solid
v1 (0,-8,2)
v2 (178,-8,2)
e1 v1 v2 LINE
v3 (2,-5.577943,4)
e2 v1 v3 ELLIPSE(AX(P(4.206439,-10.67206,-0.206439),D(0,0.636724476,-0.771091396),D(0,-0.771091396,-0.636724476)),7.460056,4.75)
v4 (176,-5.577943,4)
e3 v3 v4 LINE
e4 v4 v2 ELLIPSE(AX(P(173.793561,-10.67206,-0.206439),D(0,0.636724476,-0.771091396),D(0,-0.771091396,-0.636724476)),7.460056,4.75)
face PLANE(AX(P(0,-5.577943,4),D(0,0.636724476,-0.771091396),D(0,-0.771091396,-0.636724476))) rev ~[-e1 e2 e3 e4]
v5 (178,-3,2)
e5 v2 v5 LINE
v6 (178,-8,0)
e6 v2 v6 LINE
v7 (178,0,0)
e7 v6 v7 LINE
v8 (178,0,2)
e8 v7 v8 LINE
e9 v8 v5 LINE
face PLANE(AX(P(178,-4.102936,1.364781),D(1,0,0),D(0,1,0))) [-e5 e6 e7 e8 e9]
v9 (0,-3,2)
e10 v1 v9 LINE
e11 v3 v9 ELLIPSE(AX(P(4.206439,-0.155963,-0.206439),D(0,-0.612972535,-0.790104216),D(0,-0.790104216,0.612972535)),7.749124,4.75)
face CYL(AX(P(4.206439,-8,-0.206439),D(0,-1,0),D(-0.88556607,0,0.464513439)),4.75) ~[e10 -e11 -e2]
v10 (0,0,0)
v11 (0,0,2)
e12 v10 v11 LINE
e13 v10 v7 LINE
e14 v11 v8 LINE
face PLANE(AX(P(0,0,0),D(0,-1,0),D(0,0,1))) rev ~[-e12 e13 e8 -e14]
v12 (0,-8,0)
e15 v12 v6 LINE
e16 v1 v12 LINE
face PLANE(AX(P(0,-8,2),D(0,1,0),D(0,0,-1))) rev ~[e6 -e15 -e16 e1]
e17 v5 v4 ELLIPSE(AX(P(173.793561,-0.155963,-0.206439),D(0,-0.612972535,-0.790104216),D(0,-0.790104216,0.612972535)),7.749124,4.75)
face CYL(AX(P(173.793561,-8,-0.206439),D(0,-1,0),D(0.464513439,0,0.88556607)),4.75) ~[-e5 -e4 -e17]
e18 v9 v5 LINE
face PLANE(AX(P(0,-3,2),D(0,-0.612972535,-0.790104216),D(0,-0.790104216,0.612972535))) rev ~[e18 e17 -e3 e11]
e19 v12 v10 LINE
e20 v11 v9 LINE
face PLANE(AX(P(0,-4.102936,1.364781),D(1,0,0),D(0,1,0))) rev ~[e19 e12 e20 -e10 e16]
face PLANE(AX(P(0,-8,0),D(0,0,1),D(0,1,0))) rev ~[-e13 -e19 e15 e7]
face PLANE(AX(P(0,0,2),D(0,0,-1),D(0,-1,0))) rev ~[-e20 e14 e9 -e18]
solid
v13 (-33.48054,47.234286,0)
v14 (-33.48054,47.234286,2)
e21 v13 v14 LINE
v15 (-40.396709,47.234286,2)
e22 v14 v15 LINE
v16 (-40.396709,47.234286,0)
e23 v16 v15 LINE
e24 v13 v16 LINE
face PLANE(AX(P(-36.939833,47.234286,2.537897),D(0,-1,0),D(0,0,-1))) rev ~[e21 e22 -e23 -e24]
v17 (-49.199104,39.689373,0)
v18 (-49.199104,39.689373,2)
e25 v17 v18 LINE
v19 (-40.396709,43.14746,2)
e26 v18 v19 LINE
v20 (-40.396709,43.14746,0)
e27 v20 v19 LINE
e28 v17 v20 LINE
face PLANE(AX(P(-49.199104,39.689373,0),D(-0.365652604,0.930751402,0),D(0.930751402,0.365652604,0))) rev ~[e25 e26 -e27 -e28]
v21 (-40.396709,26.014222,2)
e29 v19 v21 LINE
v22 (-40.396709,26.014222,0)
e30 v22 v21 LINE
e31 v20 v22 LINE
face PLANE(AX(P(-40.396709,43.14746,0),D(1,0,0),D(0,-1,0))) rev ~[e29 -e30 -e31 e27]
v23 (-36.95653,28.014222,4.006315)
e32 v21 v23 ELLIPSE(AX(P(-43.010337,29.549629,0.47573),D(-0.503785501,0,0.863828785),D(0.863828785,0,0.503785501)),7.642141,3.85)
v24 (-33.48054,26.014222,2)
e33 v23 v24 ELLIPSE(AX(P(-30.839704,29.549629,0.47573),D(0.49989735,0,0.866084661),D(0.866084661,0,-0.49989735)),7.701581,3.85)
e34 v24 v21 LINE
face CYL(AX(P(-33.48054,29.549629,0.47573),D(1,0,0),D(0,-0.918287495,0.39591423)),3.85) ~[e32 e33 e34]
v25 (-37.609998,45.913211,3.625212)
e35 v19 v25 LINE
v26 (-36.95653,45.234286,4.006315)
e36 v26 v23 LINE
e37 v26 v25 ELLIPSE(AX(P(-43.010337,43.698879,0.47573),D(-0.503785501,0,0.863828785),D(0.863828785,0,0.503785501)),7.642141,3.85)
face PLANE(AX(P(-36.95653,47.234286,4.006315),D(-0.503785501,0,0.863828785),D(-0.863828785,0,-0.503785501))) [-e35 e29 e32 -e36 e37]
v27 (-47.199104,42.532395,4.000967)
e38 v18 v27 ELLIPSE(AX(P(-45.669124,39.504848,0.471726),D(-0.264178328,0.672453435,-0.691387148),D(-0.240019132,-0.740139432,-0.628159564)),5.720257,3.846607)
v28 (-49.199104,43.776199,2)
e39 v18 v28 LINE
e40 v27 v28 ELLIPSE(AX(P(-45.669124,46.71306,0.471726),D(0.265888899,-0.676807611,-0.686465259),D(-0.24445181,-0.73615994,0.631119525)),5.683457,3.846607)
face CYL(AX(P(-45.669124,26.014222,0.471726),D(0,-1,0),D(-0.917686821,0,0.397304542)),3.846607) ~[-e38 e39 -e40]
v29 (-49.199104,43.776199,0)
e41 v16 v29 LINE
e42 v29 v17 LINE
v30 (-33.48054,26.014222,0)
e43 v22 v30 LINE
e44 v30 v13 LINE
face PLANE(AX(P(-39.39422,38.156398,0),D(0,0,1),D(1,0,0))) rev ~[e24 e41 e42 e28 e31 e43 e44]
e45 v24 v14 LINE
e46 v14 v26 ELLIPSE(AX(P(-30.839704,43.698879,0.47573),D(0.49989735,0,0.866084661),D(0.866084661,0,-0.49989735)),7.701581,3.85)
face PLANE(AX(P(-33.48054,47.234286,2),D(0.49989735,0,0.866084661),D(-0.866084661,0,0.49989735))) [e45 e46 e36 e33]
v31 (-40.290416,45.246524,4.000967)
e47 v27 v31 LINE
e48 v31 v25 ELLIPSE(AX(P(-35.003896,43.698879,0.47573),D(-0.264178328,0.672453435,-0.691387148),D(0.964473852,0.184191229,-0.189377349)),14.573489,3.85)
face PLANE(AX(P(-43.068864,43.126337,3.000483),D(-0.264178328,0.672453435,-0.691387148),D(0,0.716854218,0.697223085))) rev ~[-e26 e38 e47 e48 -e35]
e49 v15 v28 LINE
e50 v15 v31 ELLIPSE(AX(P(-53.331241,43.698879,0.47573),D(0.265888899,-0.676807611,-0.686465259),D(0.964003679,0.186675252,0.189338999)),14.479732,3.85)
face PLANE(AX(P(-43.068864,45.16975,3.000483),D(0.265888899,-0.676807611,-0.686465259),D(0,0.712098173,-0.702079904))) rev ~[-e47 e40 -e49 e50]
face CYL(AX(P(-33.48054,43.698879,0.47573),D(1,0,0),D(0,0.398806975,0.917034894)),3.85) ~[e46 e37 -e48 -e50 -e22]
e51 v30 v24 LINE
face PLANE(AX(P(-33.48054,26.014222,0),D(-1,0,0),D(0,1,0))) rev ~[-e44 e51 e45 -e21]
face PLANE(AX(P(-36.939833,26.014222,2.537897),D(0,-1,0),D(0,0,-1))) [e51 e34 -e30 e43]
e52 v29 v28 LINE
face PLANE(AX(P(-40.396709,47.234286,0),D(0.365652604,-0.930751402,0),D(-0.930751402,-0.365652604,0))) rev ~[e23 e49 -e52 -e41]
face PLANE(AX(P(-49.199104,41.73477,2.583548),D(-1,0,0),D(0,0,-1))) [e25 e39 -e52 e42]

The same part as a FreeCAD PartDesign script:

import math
import FreeCAD as App
import Part
import Sketcher

doc = App.newDocument("Part")
params = doc.addObject("Spreadsheet::Sheet", "Params")
for row, (alias, value) in enumerate([
    ("sketch1_width", "8 mm"),
    ("sketch1_width2", "3 mm"),
    ("sketch1_height", "2 mm"),
    ("pad1_length", "178 mm"),
    ("sketch2_width", "2 mm"),
    ("sketch2_radius", "4.75 mm"),
    ("pad2_length", "2 mm"),
    ("sketch8_width", "2 mm"),
    ("pocket2_length", "19.547692 mm"),
    ("sketch9_width", "2 mm"),
    ("sketch9_radius", "3.85 mm"),
], start=1):
    params.set(f"A{row}", alias)
    params.set(f"B{row}", "=" + value)
    params.setAlias(f"B{row}", alias)

body = doc.addObject("PartDesign::Body", "Body")

sketch1 = body.newObject("Sketcher::SketchObject", "Sketch")
sketch1.AttachmentSupport = (doc.getObject("YZ_Plane"), [""])
sketch1.MapMode = "FlatFace"
sketch1.addGeometry([
    Part.LineSegment(App.Vector(-8, 0, 0), App.Vector(0, 0, 0)),
    Part.LineSegment(App.Vector(0, 0, 0), App.Vector(0, 2, 0)),
    Part.LineSegment(App.Vector(0, 2, 0), App.Vector(-3, 2, 0)),
    Part.LineSegment(App.Vector(-3, 2, 0), App.Vector(-5.577943, 4, 0)),
    Part.LineSegment(App.Vector(-5.577943, 4, 0), App.Vector(-8, 2, 0)),
    Part.LineSegment(App.Vector(-8, 2, 0), App.Vector(-8, 0, 0)),
], False)
sketch1.addConstraint([
    Sketcher.Constraint("Coincident", 0, 2, 1, 1),
    Sketcher.Constraint("Coincident", 1, 2, 2, 1),
    Sketcher.Constraint("Coincident", 2, 2, 3, 1),
    Sketcher.Constraint("Coincident", 3, 2, 4, 1),
    Sketcher.Constraint("Coincident", 4, 2, 5, 1),
    Sketcher.Constraint("Coincident", 5, 2, 0, 1),
    Sketcher.Constraint("Horizontal", 0),
    Sketcher.Constraint("Vertical", 1),
    Sketcher.Constraint("Horizontal", 2),
    Sketcher.Constraint("Vertical", 5),
    Sketcher.Constraint("Coincident", 0, 2, -1, 1),
    Sketcher.Constraint("Horizontal", 2, 2, 4, 2),
    Sketcher.Constraint("DistanceX", 0, 1, 0, 2, 8.0),
    Sketcher.Constraint("DistanceX", 2, 2, 2, 1, 3.0),
    Sketcher.Constraint("DistanceY", 1, 1, 1, 2, 2.0),
    Sketcher.Constraint("DistanceY", -1, 1, 3, 2, 4.0),
    Sketcher.Constraint("Distance", 3, 3.262789),
])
sketch1.setExpression("Constraints[12]", "Params.sketch1_width")
sketch1.setExpression("Constraints[13]", "Params.sketch1_width2")
sketch1.setExpression("Constraints[14]", "Params.sketch1_height")
pad1 = body.newObject("PartDesign::Pad", "Pad")
pad1.Profile = sketch1
pad1.setExpression("Length", "Params.pad1_length")

sketch2 = body.newObject("Sketcher::SketchObject", "Sketch001")
sketch2.AttachmentSupport = (doc.getObject("XZ_Plane"), [""])
sketch2.MapMode = "FlatFace"
sketch2.AttachmentOffset = App.Placement(App.Vector(0, 0, 8), App.Rotation())
sketch2.addGeometry([
    Part.ArcOfCircle(Part.Circle(App.Vector(4.206439, -0.206439, 0), App.Vector(0, 0, 1), 4.75), math.radians(117.678737), math.radians(152.321263)),
    Part.LineSegment(App.Vector(2, 4, 0), App.Vector(0, 4, 0)),
    Part.LineSegment(App.Vector(0, 4, 0), App.Vector(0, 2, 0)),
    Part.ArcOfCircle(Part.Circle(App.Vector(173.793561, -0.206439, 0), App.Vector(0, 0, 1), 4.75), math.radians(27.678737), math.radians(62.321263)),
    Part.LineSegment(App.Vector(178, 2, 0), App.Vector(178, 4, 0)),
    Part.LineSegment(App.Vector(178, 4, 0), App.Vector(176, 4, 0)),
], False)
sketch2.addConstraint([
    Sketcher.Constraint("Coincident", 0, 1, 1, 1),
    Sketcher.Constraint("Coincident", 1, 2, 2, 1),
    Sketcher.Constraint("Coincident", 2, 2, 0, 2),
    Sketcher.Constraint("Coincident", 3, 1, 4, 1),
    Sketcher.Constraint("Coincident", 4, 2, 5, 1),
    Sketcher.Constraint("Coincident", 5, 2, 3, 2),
    Sketcher.Constraint("Horizontal", 1),
    Sketcher.Constraint("Vertical", 2),
    Sketcher.Constraint("Vertical", 4),
    Sketcher.Constraint("Horizontal", 5),
    Sketcher.Constraint("Equal", 0, 3),
    Sketcher.Constraint("PointOnObject", 1, 2, -2),
    Sketcher.Constraint("Horizontal", 0, 3, 3, 3),
    Sketcher.Constraint("Horizontal", 2, 2, 3, 1),
    Sketcher.Constraint("Horizontal", 1, 2, 4, 2),
    Sketcher.Constraint("Equal", 5, 2),
    Sketcher.Constraint("DistanceX", 1, 2, 1, 1, 2.0),
    Sketcher.Constraint("Radius", 0, 4.75),
    Sketcher.Constraint("DistanceY", -1, 1, 0, 1, 4.0),
    Sketcher.Constraint("DistanceX", -1, 1, 3, 1, 178.0),
])
sketch2.setExpression("Constraints[16]", "Params.sketch2_width")
sketch2.setExpression("Constraints[17]", "Params.sketch2_radius")
pocket1 = body.newObject("PartDesign::Pocket", "Pocket")
pocket1.Profile = sketch2
pocket1.Type = "ThroughAll"
body2 = doc.addObject("PartDesign::Body", "Body001")

sketch3 = body2.newObject("Sketcher::SketchObject", "Sketch002")
sketch3.AttachmentSupport = (doc.getObject("XY_Plane001"), [""])
sketch3.MapMode = "FlatFace"
sketch3.addGeometry([
    Part.LineSegment(App.Vector(-33.48054, 47.234286, 0), App.Vector(-40.396709, 47.234286, 0)),
    Part.LineSegment(App.Vector(-40.396709, 47.234286, 0), App.Vector(-49.199104, 43.776199, 0)),
    Part.LineSegment(App.Vector(-49.199104, 43.776199, 0), App.Vector(-49.199104, 39.689373, 0)),
    Part.LineSegment(App.Vector(-49.199104, 39.689373, 0), App.Vector(-40.396709, 43.14746, 0)),
    Part.LineSegment(App.Vector(-40.396709, 43.14746, 0), App.Vector(-40.396709, 26.014222, 0)),
    Part.LineSegment(App.Vector(-40.396709, 26.014222, 0), App.Vector(-33.48054, 26.014222, 0)),
    Part.LineSegment(App.Vector(-33.48054, 26.014222, 0), App.Vector(-33.48054, 47.234286, 0)),
], False)
sketch3.addConstraint([
    Sketcher.Constraint("Coincident", 0, 2, 1, 1),
    Sketcher.Constraint("Coincident", 1, 2, 2, 1),
    Sketcher.Constraint("Coincident", 2, 2, 3, 1),
    Sketcher.Constraint("Coincident", 3, 2, 4, 1),
    Sketcher.Constraint("Coincident", 4, 2, 5, 1),
    Sketcher.Constraint("Coincident", 5, 2, 6, 1),
    Sketcher.Constraint("Coincident", 6, 2, 0, 1),
    Sketcher.Constraint("Horizontal", 0),
    Sketcher.Constraint("Vertical", 2),
    Sketcher.Constraint("Vertical", 4),
    Sketcher.Constraint("Horizontal", 5),
    Sketcher.Constraint("Vertical", 6),
    Sketcher.Constraint("Parallel", 1, 3),
    Sketcher.Constraint("Vertical", 0, 2, 3, 2),
    Sketcher.Constraint("Distance", 1, 9.4573),
    Sketcher.Constraint("DistanceX", 0, 2, 0, 1, 6.916169),
    Sketcher.Constraint("DistanceY", -1, 1, 1, 2, 43.776199),
    Sketcher.Constraint("DistanceY", 2, 2, 2, 1, 4.086826),
    Sketcher.Constraint("DistanceY", 4, 2, 4, 1, 17.133238),
    Sketcher.Constraint("DistanceX", 0, 2, -1, 1, 40.396709),
    Sketcher.Constraint("DistanceY", -1, 1, 3, 2, 43.14746),
])
pad2 = body2.newObject("PartDesign::Pad", "Pad001")
pad2.Profile = sketch3
pad2.setExpression("Length", "Params.pad2_length")

sketch4 = body2.newObject("Sketcher::SketchObject", "Sketch003")
sketch4.AttachmentSupport = (doc.getObject("YZ_Plane001"), [""])
sketch4.MapMode = "FlatFace"
sketch4.AttachmentOffset = App.Placement(App.Vector(0, 0, -49.199104), App.Rotation())
sketch4.addGeometry([
    Part.LineSegment(App.Vector(41.74668, 4.000967, 0), App.Vector(43.776199, 2, 0)),
    Part.LineSegment(App.Vector(43.776199, 2, 0), App.Vector(39.689373, 2, 0)),
    Part.LineSegment(App.Vector(39.689373, 2, 0), App.Vector(41.74668, 4.000967, 0)),
], False)
sketch4.addConstraint([
    Sketcher.Constraint("Coincident", 0, 2, 1, 1),
    Sketcher.Constraint("Coincident", 1, 2, 2, 1),
    Sketcher.Constraint("Coincident", 2, 2, 0, 1),
    Sketcher.Constraint("Horizontal", 1),
    Sketcher.Constraint("DistanceY", -1, 1, 0, 2, 2.0),
    Sketcher.Constraint("DistanceX", -1, 1, 0, 2, 43.776199),
    Sketcher.Constraint("Distance", 2, 2.869909),
    Sketcher.Constraint("DistanceX", 1, 2, 1, 1, 4.086826),
    Sketcher.Constraint("DistanceX", -1, 1, 2, 2, 41.74668),
])

sketch5 = body2.newObject("Sketcher::SketchObject", "Sketch004")
sketch5.Placement = App.Placement(App.Vector(-20.780999, 52.89705, 0), App.Rotation(App.Vector(0.930751402, 0.365652604, 0), App.Vector(0, 0, 0.999999999), App.Vector(0.365652604, -0.930751402, 0), "ZXY"))
sketch5.addGeometry(Part.LineSegment(App.Vector(-30.532433, 4, 0), App.Vector(-17.359765, 4, 0)), False)
sketch5.addConstraint([
    Sketcher.Constraint("Horizontal", 0),
    Sketcher.Constraint("DistanceY", -1, 1, 0, 1, 4.0),
    Sketcher.Constraint("DistanceX", 0, 1, 0, 2, 13.172669),
    Sketcher.Constraint("DistanceX", 0, 1, -1, 1, 30.532433),
])
doc.recompute()

additivepipe = body2.newObject("PartDesign::AdditivePipe", "AdditivePipe")
additivepipe.Profile = sketch4
additivepipe.Spine = (sketch5, ["Edge1"])

sketch6 = body2.newObject("Sketcher::SketchObject", "Sketch005")
sketch6.AttachmentSupport = (doc.getObject("XZ_Plane001"), [""])
sketch6.MapMode = "FlatFace"
sketch6.AttachmentOffset = App.Placement(App.Vector(0, 0, -26.014222), App.Rotation())
sketch6.addGeometry([
    Part.LineSegment(App.Vector(-36.95653, 4.006315, 0), App.Vector(-40.396709, 2, 0)),
    Part.LineSegment(App.Vector(-40.396709, 2, 0), App.Vector(-33.48054, 2, 0)),
    Part.LineSegment(App.Vector(-33.48054, 2, 0), App.Vector(-36.95653, 4.006315, 0)),
], False)
sketch6.addConstraint([
    Sketcher.Constraint("Coincident", 0, 2, 1, 1),
    Sketcher.Constraint("Coincident", 1, 2, 2, 1),
    Sketcher.Constraint("Coincident", 2, 2, 0, 1),
    Sketcher.Constraint("Horizontal", 1),
    Sketcher.Constraint("DistanceY", -1, 1, 0, 2, 2.0),
    Sketcher.Constraint("DistanceX", 1, 1, 1, 2, 6.916169),
    Sketcher.Constraint("DistanceX", 0, 2, -1, 1, 40.396709),
    Sketcher.Constraint("DistanceX", 2, 2, -1, 1, 36.95653),
    Sketcher.Constraint("Distance", 0, 3.982478),
])

sketch7 = body2.newObject("Sketcher::SketchObject", "Sketch006")
sketch7.AttachmentSupport = (doc.getObject("XY_Plane001"), [""])
sketch7.MapMode = "FlatFace"
sketch7.AttachmentOffset = App.Placement(App.Vector(0, 0, 4), App.Rotation())
sketch7.addGeometry(Part.LineSegment(App.Vector(-36.938624, 47.234286, 0), App.Vector(-36.938624, 26.014222, 0)), False)
sketch7.addConstraint([
    Sketcher.Constraint("Vertical", 0),
    Sketcher.Constraint("DistanceY", 0, 2, 0, 1, 21.220064),
    Sketcher.Constraint("DistanceY", -1, 1, 0, 2, 26.014222),
    Sketcher.Constraint("DistanceX", 0, 1, -1, 1, 36.938624),
])
doc.recompute()

additivepipe2 = body2.newObject("PartDesign::AdditivePipe", "AdditivePipe001")
additivepipe2.Profile = sketch6
additivepipe2.Spine = (sketch7, ["Edge1"])

sketch8 = body2.newObject("Sketcher::SketchObject", "Sketch007")
sketch8.AttachmentSupport = (doc.getObject("XZ_Plane001"), [""])
sketch8.MapMode = "FlatFace"
sketch8.AttachmentOffset = App.Placement(App.Vector(0, 0, -26.014222), App.Rotation())
sketch8.addGeometry([
    Part.ArcOfCircle(Part.Circle(App.Vector(-45.669124, 0.471726, 0), App.Vector(0, 0, 1), 3.846607), math.radians(113.437473), math.radians(156.59022)),
    Part.LineSegment(App.Vector(-47.199104, 4.000967, 0), App.Vector(-49.199104, 4.000967, 0)),
    Part.LineSegment(App.Vector(-49.199104, 4.000967, 0), App.Vector(-49.199104, 2, 0)),
], False)
sketch8.addConstraint([
    Sketcher.Constraint("Coincident", 0, 1, 1, 1),
    Sketcher.Constraint("Coincident", 1, 2, 2, 1),
    Sketcher.Constraint("Coincident", 2, 2, 0, 2),
    Sketcher.Constraint("Horizontal", 1),
    Sketcher.Constraint("Vertical", 2),
    Sketcher.Constraint("DistanceX", 1, 2, 1, 1, 2.0),
    Sketcher.Constraint("DistanceY", -1, 1, 2, 2, 2.0),
    Sketcher.Constraint("Radius", 0, 3.846607),
    Sketcher.Constraint("DistanceY", 2, 2, 2, 1, 2.000967),
    Sketcher.Constraint("DistanceX", 0, 3, -1, 1, 45.669124),
])
sketch8.setExpression("Constraints[5]", "Params.sketch8_width")
pocket2 = body2.newObject("PartDesign::Pocket", "Pocket001")
pocket2.Profile = sketch8
pocket2.setExpression("Length", "Params.pocket2_length")

sketch9 = body2.newObject("Sketcher::SketchObject", "Sketch008")
sketch9.AttachmentSupport = (doc.getObject("YZ_Plane001"), [""])
sketch9.MapMode = "FlatFace"
sketch9.AttachmentOffset = App.Placement(App.Vector(0, 0, -33.48054), App.Rotation())
sketch9.addGeometry([
    Part.ArcOfCircle(Part.Circle(App.Vector(29.549629, 0.47573, 0), App.Vector(0, 0, 1), 3.85), math.radians(113.503618), math.radians(156.676996)),
    Part.LineSegment(App.Vector(28.014222, 4.006315, 0), App.Vector(26.014222, 4.006315, 0)),
    Part.LineSegment(App.Vector(26.014222, 4.006315, 0), App.Vector(26.014222, 2, 0)),
    Part.ArcOfCircle(Part.Circle(App.Vector(43.698879, 0.47573, 0), App.Vector(0, 0, 1), 3.85), math.radians(23.323004), math.radians(66.496382)),
    Part.LineSegment(App.Vector(47.234286, 2, 0), App.Vector(48.892349, 2, 0)),
    Part.LineSegment(App.Vector(48.892349, 2, 0), App.Vector(48.892349, 4.006315, 0)),
    Part.LineSegment(App.Vector(48.892349, 4.006315, 0), App.Vector(45.234286, 4.006315, 0)),
], False)
sketch9.addConstraint([
    Sketcher.Constraint("Coincident", 0, 1, 1, 1),
    Sketcher.Constraint("Coincident", 1, 2, 2, 1),
    Sketcher.Constraint("Coincident", 2, 2, 0, 2),
    Sketcher.Constraint("Coincident", 3, 1, 4, 1),
    Sketcher.Constraint("Coincident", 4, 2, 5, 1),
    Sketcher.Constraint("Coincident", 5, 2, 6, 1),
    Sketcher.Constraint("Coincident", 6, 2, 3, 2),
    Sketcher.Constraint("Horizontal", 1),
    Sketcher.Constraint("Vertical", 2),
    Sketcher.Constraint("Horizontal", 4),
    Sketcher.Constraint("Vertical", 5),
    Sketcher.Constraint("Horizontal", 6),
    Sketcher.Constraint("Equal", 0, 3),
    Sketcher.Constraint("Horizontal", 0, 3, 3, 3),
    Sketcher.Constraint("Horizontal", 2, 2, 3, 1),
    Sketcher.Constraint("Horizontal", 1, 2, 5, 2),
    Sketcher.Constraint("DistanceX", 1, 2, 1, 1, 2.0),
    Sketcher.Constraint("Radius", 0, 3.85),
    Sketcher.Constraint("DistanceY", -1, 1, 2, 2, 2.0),
    Sketcher.Constraint("DistanceX", 4, 1, 4, 2, 1.658063),
    Sketcher.Constraint("DistanceY", 2, 2, 2, 1, 2.006315),
    Sketcher.Constraint("DistanceX", -1, 1, 0, 3, 29.549629),
    Sketcher.Constraint("DistanceX", -1, 1, 3, 3, 43.698879),
])
sketch9.setExpression("Constraints[16]", "Params.sketch9_width")
sketch9.setExpression("Constraints[17]", "Params.sketch9_radius")
pocket3 = body2.newObject("PartDesign::Pocket", "Pocket002")
pocket3.Profile = sketch9
pocket3.Type = "ThroughAll"

doc.recompute()
